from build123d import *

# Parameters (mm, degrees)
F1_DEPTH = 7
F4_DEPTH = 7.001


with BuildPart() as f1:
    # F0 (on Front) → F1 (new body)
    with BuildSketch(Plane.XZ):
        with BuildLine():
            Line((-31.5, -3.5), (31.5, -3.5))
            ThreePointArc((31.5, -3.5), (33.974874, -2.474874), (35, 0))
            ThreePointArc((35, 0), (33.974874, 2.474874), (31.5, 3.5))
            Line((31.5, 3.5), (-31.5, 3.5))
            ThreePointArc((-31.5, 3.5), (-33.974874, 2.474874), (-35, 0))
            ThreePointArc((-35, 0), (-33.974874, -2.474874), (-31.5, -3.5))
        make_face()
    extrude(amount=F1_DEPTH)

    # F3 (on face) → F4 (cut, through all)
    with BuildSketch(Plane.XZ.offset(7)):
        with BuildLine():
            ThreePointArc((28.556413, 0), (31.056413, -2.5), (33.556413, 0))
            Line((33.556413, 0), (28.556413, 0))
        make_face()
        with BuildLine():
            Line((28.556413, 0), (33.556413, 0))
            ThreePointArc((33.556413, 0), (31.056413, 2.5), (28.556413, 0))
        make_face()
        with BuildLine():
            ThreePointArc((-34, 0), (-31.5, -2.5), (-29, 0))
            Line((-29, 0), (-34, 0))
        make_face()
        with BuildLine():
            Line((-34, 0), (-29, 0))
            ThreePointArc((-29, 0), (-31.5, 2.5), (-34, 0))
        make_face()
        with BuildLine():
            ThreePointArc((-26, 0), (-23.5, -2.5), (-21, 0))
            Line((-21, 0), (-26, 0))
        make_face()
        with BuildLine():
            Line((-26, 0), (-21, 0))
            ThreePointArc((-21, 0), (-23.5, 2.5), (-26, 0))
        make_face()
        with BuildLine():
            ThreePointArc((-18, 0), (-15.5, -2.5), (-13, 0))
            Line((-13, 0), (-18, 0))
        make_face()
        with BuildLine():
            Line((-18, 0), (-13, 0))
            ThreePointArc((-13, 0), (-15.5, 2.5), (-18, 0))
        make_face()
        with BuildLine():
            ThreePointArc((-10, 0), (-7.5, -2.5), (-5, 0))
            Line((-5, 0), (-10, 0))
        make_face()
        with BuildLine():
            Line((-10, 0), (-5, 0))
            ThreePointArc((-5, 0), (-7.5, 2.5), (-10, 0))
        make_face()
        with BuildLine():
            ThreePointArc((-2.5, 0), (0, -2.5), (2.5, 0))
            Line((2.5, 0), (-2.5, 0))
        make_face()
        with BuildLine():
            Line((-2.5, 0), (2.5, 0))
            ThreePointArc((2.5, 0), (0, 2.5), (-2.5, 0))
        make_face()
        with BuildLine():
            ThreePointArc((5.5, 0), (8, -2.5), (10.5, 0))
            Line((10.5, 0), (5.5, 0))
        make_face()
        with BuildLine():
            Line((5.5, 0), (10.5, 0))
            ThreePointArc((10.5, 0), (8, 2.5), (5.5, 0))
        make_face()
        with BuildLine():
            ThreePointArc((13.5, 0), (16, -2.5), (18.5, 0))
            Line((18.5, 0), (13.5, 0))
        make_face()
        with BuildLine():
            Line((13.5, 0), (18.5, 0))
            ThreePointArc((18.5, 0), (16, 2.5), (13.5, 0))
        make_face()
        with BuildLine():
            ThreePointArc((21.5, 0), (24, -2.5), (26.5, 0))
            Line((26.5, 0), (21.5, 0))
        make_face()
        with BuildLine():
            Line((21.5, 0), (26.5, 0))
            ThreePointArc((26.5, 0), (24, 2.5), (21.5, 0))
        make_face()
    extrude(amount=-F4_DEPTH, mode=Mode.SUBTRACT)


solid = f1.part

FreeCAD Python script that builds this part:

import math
import FreeCAD as App
import Part
import Sketcher

doc = App.newDocument("Part")
params = doc.addObject("Spreadsheet::Sheet", "Params")
for row, (alias, value) in enumerate([
    ("sketch1_radius", "3.499999 mm"),
    ("sketch1_width", "63 mm"),
    ("pad1_length", "7 mm"),
    ("sketch2_diameter", "5 mm"),
], start=1):
    params.set(f"A{row}", alias)
    params.set(f"B{row}", "=" + value)
    params.setAlias(f"B{row}", alias)

body = doc.addObject("PartDesign::Body", "Body")

# Sketch on XZ plane
sketch1 = body.newObject("Sketcher::SketchObject", "Sketch")
sketch1.AttachmentSupport = (doc.getObject("XZ_Plane"), [""])
sketch1.MapMode = "FlatFace"
sketch1.addGeometry([
    Part.LineSegment(App.Vector(-31.5, -3.5, 0), App.Vector(31.5, -3.5, 0)),  # 0
    Part.ArcOfCircle(Part.Circle(App.Vector(31.500001, -0.000001, 0), App.Vector(0, 0, 1), 3.499999), math.radians(-90.000015), math.radians(0.000015)),  # 1
    Part.ArcOfCircle(Part.Circle(App.Vector(31.500001, 0.000001, 0), App.Vector(0, 0, 1), 3.499999), math.radians(-0.000015), math.radians(90.000015)),  # 2
    Part.LineSegment(App.Vector(31.5, 3.5, 0), App.Vector(-31.5, 3.5, 0)),  # 3
    Part.ArcOfCircle(Part.Circle(App.Vector(-31.500001, 0.000001, 0), App.Vector(0, 0, 1), 3.499999), math.radians(89.999985), math.radians(180.000015)),  # 4
    Part.ArcOfCircle(Part.Circle(App.Vector(-31.500001, -0.000001, 0), App.Vector(0, 0, 1), 3.499999), math.radians(179.999985), math.radians(270.000015)),  # 5
], False)
sketch1.addConstraint([
    Sketcher.Constraint("Tangent", 0, 2, 1, 1),
    Sketcher.Constraint("Tangent", 1, 2, 2, 1),
    Sketcher.Constraint("Tangent", 2, 2, 3, 1),
    Sketcher.Constraint("Tangent", 3, 2, 4, 1),
    Sketcher.Constraint("Tangent", 4, 2, 5, 1),
    Sketcher.Constraint("Tangent", 5, 2, 0, 1),
    Sketcher.Constraint("Horizontal", 0),
    Sketcher.Constraint("Horizontal", 3),
    Sketcher.Constraint("Equal", 1, 2),
    Sketcher.Constraint("Equal", 2, 4),
    Sketcher.Constraint("Symmetric", 1, 3, 4, 3, -1, 1),
    Sketcher.Constraint("PointOnObject", 1, 2, -1),
    Sketcher.Constraint("PointOnObject", 4, 2, -1),
    Sketcher.Constraint("Radius", 1, 3.499999),
    Sketcher.Constraint("DistanceX", 0, 1, 0, 2, 63.0),
])
sketch1.setExpression("Constraints[13]", "Params.sketch1_radius")
sketch1.setExpression("Constraints[14]", "Params.sketch1_width")
pad1 = body.newObject("PartDesign::Pad", "Pad")
pad1.Profile = sketch1
pad1.setExpression("Length", "Params.pad1_length")

# Sketch on XZ plane
sketch2 = body.newObject("Sketcher::SketchObject", "Sketch001")
sketch2.AttachmentSupport = (doc.getObject("XZ_Plane"), [""])
sketch2.MapMode = "FlatFace"
sketch2.AttachmentOffset = App.Placement(App.Vector(0, 0, 7), App.Rotation())
sketch2.addGeometry([
    Part.Circle(App.Vector(31.056413, 0, 0), App.Vector(0, 0, 1), 2.5),  # 0
    Part.Circle(App.Vector(-31.5, 0, 0), App.Vector(0, 0, 1), 2.5),  # 1
    Part.Circle(App.Vector(-23.5, 0, 0), App.Vector(0, 0, 1), 2.5),  # 2
    Part.Circle(App.Vector(-15.5, 0, 0), App.Vector(0, 0, 1), 2.5),  # 3
    Part.Circle(App.Vector(-7.5, 0, 0), App.Vector(0, 0, 1), 2.5),  # 4
    Part.Circle(App.Vector(0, 0, 0), App.Vector(0, 0, 1), 2.5),  # 5
    Part.Circle(App.Vector(8, 0, 0), App.Vector(0, 0, 1), 2.5),  # 6
    Part.Circle(App.Vector(16, 0, 0), App.Vector(0, 0, 1), 2.5),  # 7
    Part.Circle(App.Vector(24, 0, 0), App.Vector(0, 0, 1), 2.5),  # 8
], False)
sketch2.addConstraint([
    Sketcher.Constraint("Coincident", 5, 3, -1, 1),
    Sketcher.Constraint("Equal", 0, 1),
    Sketcher.Constraint("Equal", 1, 2),
    Sketcher.Constraint("Equal", 2, 3),
    Sketcher.Constraint("Equal", 3, 4),
    Sketcher.Constraint("Equal", 4, 5),
    Sketcher.Constraint("Equal", 5, 6),
    Sketcher.Constraint("Equal", 6, 7),
    Sketcher.Constraint("Equal", 7, 8),
    Sketcher.Constraint("PointOnObject", 0, 3, -1),
    Sketcher.Constraint("PointOnObject", 1, 3, -1),
    Sketcher.Constraint("PointOnObject", 2, 3, -1),
    Sketcher.Constraint("PointOnObject", 3, 3, -1),
    Sketcher.Constraint("PointOnObject", 4, 3, -1),
    Sketcher.Constraint("PointOnObject", 6, 3, -1),
    Sketcher.Constraint("PointOnObject", 7, 3, -1),
    Sketcher.Constraint("PointOnObject", 8, 3, -1),
    Sketcher.Constraint("Diameter", 0, 5.0),
    Sketcher.Constraint("DistanceX", -1, 1, 6, 3, 8.0),
    Sketcher.Constraint("DistanceX", -1, 1, 7, 3, 16.0),
    Sketcher.Constraint("DistanceX", -1, 1, 8, 3, 24.0),
    Sketcher.Constraint("DistanceX", 1, 3, 2, 3, 8.0),
    Sketcher.Constraint("DistanceX", 2, 3, 3, 3, 8.0),
    Sketcher.Constraint("DistanceX", 3, 3, 4, 3, 8.0),
    Sketcher.Constraint("DistanceX", 1, 3, -1, 1, 31.5),
    Sketcher.Constraint("DistanceX", -1, 1, 0, 3, 31.056413),
])
sketch2.setExpression("Constraints[17]", "Params.sketch2_diameter")
pocket1 = body.newObject("PartDesign::Pocket", "Pocket")
pocket1.Profile = sketch2
pocket1.Type = "ThroughAll"

doc.recompute()
